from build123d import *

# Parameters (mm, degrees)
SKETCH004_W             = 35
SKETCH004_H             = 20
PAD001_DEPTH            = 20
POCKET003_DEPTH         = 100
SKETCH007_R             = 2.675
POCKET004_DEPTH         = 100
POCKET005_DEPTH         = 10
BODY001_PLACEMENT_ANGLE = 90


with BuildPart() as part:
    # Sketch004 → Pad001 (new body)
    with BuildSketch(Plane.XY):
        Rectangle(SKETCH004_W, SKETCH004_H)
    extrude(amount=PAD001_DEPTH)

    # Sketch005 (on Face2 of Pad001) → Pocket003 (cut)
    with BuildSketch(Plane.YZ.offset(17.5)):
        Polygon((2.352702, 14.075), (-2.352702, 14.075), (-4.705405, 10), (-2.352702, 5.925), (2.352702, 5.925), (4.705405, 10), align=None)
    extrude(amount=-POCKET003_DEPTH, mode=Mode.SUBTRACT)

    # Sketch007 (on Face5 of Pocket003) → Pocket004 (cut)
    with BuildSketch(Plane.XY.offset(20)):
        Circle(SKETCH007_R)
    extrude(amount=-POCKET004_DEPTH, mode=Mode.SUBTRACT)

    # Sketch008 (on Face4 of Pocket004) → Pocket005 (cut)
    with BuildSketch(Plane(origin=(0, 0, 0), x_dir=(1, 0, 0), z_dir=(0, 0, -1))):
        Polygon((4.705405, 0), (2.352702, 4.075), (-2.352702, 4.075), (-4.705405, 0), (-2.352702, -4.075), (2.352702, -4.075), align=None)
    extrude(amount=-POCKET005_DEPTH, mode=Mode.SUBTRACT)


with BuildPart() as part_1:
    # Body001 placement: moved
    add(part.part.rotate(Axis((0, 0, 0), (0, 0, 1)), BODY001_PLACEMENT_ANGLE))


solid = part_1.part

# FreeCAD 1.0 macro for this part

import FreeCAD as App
import Part
import Sketcher
from FreeCAD import Vector
Q = App.Units.Quantity


def add_polygon(sketch, points):
    """Adds a closed chain of lines whose ends are joined by coincident constraints."""
    first, n = sketch.GeometryCount, len(points)
    for a, b in zip(points, points[1:] + points[:1]):
        sketch.addGeometry(Part.LineSegment(App.Vector(*a, 0), App.Vector(*b, 0)), False)
    for i in range(n):
        sketch.addConstraint(Sketcher.Constraint("Coincident", first + i, 2, first + (i + 1) % n, 1))

doc = App.newDocument("Part")
params = doc.addObject("Spreadsheet::Sheet", "Params")
for row, (alias, value) in enumerate([
    ("sketch1_width", "35 mm"),
    ("sketch1_height", "20 mm"),
    ("pad1_length", "20 mm"),
    ("pocket1_length", "100 mm"),
    ("sketch3_diameter", "5.35 mm"),
    ("pocket2_length", "100 mm"),
    ("pocket3_length", "10 mm"),
], start=1):
    params.set(f"A{row}", alias)
    params.set(f"B{row}", "=" + value)
    params.setAlias(f"B{row}", alias)

body = doc.addObject("PartDesign::Body", "Body")

# Sketch on XY plane
sketch1 = doc.addObject("Sketcher::SketchObject", "Sketch")
body.addObject(sketch1)
sketch1.AttachmentSupport = (doc.XY_Plane, [""])
sketch1.MapMode = "FlatFace"
add_polygon(sketch1, [(-18, 10), (-18, -10), (18, -10), (18, 10)])  # lines 0-3
sketch1.addConstraint(Sketcher.Constraint("Vertical", 0))
sketch1.addConstraint(Sketcher.Constraint("Horizontal", 1))
sketch1.addConstraint(Sketcher.Constraint("Vertical", 2))
sketch1.addConstraint(Sketcher.Constraint("Horizontal", 3))
sketch1.addConstraint(Sketcher.Constraint("Symmetric", 0, 2, 2, 2, -1, 1))
sketch1.addConstraint(Sketcher.Constraint("DistanceX", 1, 1, 1, 2, 35.0))
sketch1.addConstraint(Sketcher.Constraint("DistanceY", 0, 2, 0, 1, 20.0))
sketch1.setExpression("Constraints[9]", "Params.sketch1_width")
sketch1.setExpression("Constraints[10]", "Params.sketch1_height")
pad1 = doc.addObject("PartDesign::Pad", "Pad")
body.addObject(pad1)
pad1.Profile = sketch1
pad1.setExpression("Length", "Params.pad1_length")

# Sketch on YZ plane
sketch2 = doc.addObject("Sketcher::SketchObject", "Sketch001")
body.addObject(sketch2)
sketch2.AttachmentSupport = (doc.YZ_Plane, [""])
sketch2.MapMode = "FlatFace"
sketch2.AttachmentOffset = App.Placement(Vector(0, 0, 17.5), App.Rotation())
add_polygon(sketch2, [(2.4, 14.1), (-2.4, 14.1), (-4.7, 10), (-2.4, 5.9), (2.4, 5.9), (4.7, 10)])  # lines 0-5
sketch2.addConstraint(Sketcher.Constraint("Horizontal", 0))
sketch2.addConstraint(Sketcher.Constraint("Horizontal", 3))
sketch2.addConstraint(Sketcher.Constraint("Symmetric", 1, 2, 4, 2, -2))
sketch2.addConstraint(Sketcher.Constraint("Parallel", 1, 4))
sketch2.addConstraint(Sketcher.Constraint("Parallel", 2, 5))
sketch2.addConstraint(Sketcher.Constraint("Vertical", 0, 2, 2, 2))
sketch2.addConstraint(Sketcher.Constraint("Vertical", 3, 2, 5, 2))
sketch2.addConstraint(Sketcher.Constraint("Angle", 1, Q("-120.000007 deg")))
sketch2.addConstraint(Sketcher.Constraint("DistanceY", -1, 1, 1, 2, 10.0))
sketch2.addConstraint(Sketcher.Constraint("DistanceY", 2, 2, 0, 2, 8.15))
sketch2.addConstraint(Sketcher.Constraint("DistanceX", 0, 2, -1, 1, 2.352702))
pocket1 = doc.addObject("PartDesign::Pocket", "Pocket")
body.addObject(pocket1)
pocket1.Profile = sketch2
pocket1.setExpression("Length", "Params.pocket1_length")

# Sketch on XY plane
sketch3 = doc.addObject("Sketcher::SketchObject", "Sketch002")
body.addObject(sketch3)
sketch3.AttachmentSupport = (doc.XY_Plane, [""])
sketch3.MapMode = "FlatFace"
sketch3.AttachmentOffset = App.Placement(Vector(0, 0, 20), App.Rotation())
sketch3.addGeometry(Part.Circle(Vector(0, 0, 0), Vector(0, 0, 1), 2.7), False)
sketch3.addConstraint(Sketcher.Constraint("Coincident", 0, 3, -1, 1))
sketch3.addConstraint(Sketcher.Constraint("Diameter", 0, 5.35))
sketch3.setExpression("Constraints[1]", "Params.sketch3_diameter")
pocket2 = doc.addObject("PartDesign::Pocket", "Pocket001")
body.addObject(pocket2)
pocket2.Profile = sketch3
pocket2.setExpression("Length", "Params.pocket2_length")

# Sketch on XY plane
sketch4 = doc.addObject("Sketcher::SketchObject", "Sketch003")
body.addObject(sketch4)
sketch4.AttachmentSupport = (doc.XY_Plane, [""])
sketch4.MapMode = "FlatFace"
add_polygon(sketch4, [(4.7, 0), (2.4, -4.1), (-2.4, -4.1), (-4.7, 0), (-2.4, 4.1), (2.4, 4.1)])  # lines 0-5
sketch4.addConstraint(Sketcher.Constraint("Horizontal", 1))
sketch4.addConstraint(Sketcher.Constraint("Horizontal", 4))
sketch4.addConstraint(Sketcher.Constraint("Symmetric", 0, 2, 3, 2, -1, 1))
sketch4.addConstraint(Sketcher.Constraint("Symmetric", 2, 2, 5, 2, -1, 1))
sketch4.addConstraint(Sketcher.Constraint("PointOnObject", 2, 2, -1))
sketch4.addConstraint(Sketcher.Constraint("Parallel", 2, 5))
sketch4.addConstraint(Sketcher.Constraint("Vertical", 1, 2, 3, 2))
sketch4.addConstraint(Sketcher.Constraint("Angle", 0, Q("-120.000007 deg")))
sketch4.addConstraint(Sketcher.Constraint("DistanceY", 1, 2, 3, 2, 8.15))
sketch4.addConstraint(Sketcher.Constraint("DistanceX", -1, 1, 0, 2, 2.352702))
pocket3 = doc.addObject("PartDesign::Pocket", "Pocket002")
body.addObject(pocket3)
pocket3.Profile = sketch4
pocket3.setExpression("Length", "Params.pocket3_length")
pocket3.Reversed = True
body2 = doc.addObject("PartDesign::Body", "Body001")
doc.recompute()

body.Placement = App.Placement(Vector(0, 0, 0), App.Rotation(Vector(0, 0, 1), 90))
boolean = doc.addObject("PartDesign::Boolean", "Boolean")
body2.addObject(boolean)
boolean.Type = "Fuse"
boolean.addObjects([body])

doc.recompute()
